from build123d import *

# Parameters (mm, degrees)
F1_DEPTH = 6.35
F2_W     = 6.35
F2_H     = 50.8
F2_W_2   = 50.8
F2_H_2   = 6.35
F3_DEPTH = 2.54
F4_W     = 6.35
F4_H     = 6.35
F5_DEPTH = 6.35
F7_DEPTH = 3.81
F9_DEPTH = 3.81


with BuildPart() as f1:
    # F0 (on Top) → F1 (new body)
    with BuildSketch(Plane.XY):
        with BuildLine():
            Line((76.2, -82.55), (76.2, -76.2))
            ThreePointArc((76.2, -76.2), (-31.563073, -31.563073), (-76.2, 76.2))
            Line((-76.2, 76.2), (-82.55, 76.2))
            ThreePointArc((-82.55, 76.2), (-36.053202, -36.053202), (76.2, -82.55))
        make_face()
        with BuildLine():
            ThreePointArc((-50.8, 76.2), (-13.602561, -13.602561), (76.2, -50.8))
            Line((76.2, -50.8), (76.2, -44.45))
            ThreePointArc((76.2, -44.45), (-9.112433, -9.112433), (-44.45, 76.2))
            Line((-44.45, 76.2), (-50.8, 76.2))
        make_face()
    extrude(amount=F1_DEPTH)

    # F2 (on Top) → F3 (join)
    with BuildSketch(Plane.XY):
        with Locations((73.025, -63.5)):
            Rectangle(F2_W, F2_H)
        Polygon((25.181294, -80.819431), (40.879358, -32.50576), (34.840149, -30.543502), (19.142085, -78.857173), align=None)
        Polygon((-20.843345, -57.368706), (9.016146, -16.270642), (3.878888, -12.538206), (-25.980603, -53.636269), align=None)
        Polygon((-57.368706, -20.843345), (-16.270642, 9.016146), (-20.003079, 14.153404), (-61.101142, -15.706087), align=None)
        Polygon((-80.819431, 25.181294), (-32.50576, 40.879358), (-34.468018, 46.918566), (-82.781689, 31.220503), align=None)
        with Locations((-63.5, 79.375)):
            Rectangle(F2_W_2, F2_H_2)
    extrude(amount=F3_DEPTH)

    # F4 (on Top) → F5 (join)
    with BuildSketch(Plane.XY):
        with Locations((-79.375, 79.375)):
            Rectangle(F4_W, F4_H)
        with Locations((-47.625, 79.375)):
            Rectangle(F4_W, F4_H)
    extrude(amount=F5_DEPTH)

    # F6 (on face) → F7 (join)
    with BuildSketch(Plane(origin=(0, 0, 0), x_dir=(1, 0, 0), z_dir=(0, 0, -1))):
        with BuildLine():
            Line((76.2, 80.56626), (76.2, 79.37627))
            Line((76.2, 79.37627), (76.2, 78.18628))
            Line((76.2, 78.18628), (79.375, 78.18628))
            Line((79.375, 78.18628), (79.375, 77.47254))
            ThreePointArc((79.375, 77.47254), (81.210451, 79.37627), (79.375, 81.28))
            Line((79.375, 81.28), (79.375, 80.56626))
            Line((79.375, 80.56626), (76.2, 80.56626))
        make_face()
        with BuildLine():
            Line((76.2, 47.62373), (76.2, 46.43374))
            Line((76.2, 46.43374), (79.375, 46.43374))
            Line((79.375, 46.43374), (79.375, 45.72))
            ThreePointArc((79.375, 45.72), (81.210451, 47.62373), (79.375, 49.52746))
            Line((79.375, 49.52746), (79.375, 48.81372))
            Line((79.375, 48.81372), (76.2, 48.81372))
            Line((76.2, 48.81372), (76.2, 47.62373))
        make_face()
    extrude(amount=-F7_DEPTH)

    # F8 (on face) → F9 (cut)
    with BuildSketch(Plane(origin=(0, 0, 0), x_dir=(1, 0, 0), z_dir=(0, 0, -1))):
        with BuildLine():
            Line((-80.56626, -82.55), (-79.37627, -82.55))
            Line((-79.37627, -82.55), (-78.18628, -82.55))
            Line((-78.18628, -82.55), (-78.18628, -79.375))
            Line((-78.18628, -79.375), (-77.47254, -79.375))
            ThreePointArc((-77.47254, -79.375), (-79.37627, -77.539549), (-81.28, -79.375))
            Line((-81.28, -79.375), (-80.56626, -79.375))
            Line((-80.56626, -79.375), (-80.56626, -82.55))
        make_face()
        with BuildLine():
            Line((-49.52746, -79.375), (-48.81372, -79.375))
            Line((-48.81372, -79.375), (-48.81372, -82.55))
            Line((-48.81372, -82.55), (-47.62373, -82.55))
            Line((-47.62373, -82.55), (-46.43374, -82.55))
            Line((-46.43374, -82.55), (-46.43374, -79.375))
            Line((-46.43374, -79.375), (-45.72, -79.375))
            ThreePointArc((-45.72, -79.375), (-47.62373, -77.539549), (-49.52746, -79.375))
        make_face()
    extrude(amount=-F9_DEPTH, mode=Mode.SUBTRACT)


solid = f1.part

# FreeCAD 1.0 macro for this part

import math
import FreeCAD as App
import Part
import Sketcher

V = App.Vector
Q = App.Units.Quantity

doc = App.newDocument("Part")
body = doc.addObject("PartDesign::Body", "Body")
body.AllowCompound = True

# Sketch on XY plane
sketch1 = doc.addObject("Sketcher::SketchObject", "Sketch")
body.addObject(sketch1)
sketch1.AttachmentSupport = (doc.XY_Plane, [""])
sketch1.MapMode = "FlatFace"
sketch1.addGeometry(Part.LineSegment(V(76, -83, 0), V(76, -76, 0)), False)
sketch1.addGeometry(Part.ArcOfCircle(Part.Circle(V(76, 76, 0), V(0, 0, 1), 152), math.radians(-180), math.radians(-90)), False)
sketch1.addGeometry(Part.LineSegment(V(-76, 76, 0), V(-83, 76, 0)), False)
sketch1.addGeometry(Part.ArcOfCircle(Part.Circle(V(76, 76, 0), V(0, 0, 1), 159), math.radians(180), math.radians(270)), False)
sketch1.addGeometry(Part.ArcOfCircle(Part.Circle(V(76, 76, 0), V(0, 0, 1), 127), math.radians(-180), math.radians(-90)), False)
sketch1.addGeometry(Part.LineSegment(V(76, -51, 0), V(76, -44, 0)), False)
sketch1.addGeometry(Part.ArcOfCircle(Part.Circle(V(76, 76, 0), V(0, 0, 1), 121), math.radians(-180), math.radians(-90)), False)
sketch1.addGeometry(Part.LineSegment(V(-44, 76, 0), V(-51, 76, 0)), False)
sketch1.addConstraint(Sketcher.Constraint("Coincident", 0, 2, 1, 2))
sketch1.addConstraint(Sketcher.Constraint("Coincident", 1, 1, 2, 1))
sketch1.addConstraint(Sketcher.Constraint("Coincident", 2, 2, 3, 1))
sketch1.addConstraint(Sketcher.Constraint("Coincident", 3, 2, 0, 1))
sketch1.addConstraint(Sketcher.Constraint("Coincident", 4, 2, 5, 1))
sketch1.addConstraint(Sketcher.Constraint("Coincident", 5, 2, 6, 2))
sketch1.addConstraint(Sketcher.Constraint("Coincident", 6, 1, 7, 1))
sketch1.addConstraint(Sketcher.Constraint("Coincident", 7, 2, 4, 1))
sketch1.addConstraint(Sketcher.Constraint("Vertical", 0))
sketch1.addConstraint(Sketcher.Constraint("Horizontal", 2))
sketch1.addConstraint(Sketcher.Constraint("Vertical", 5))
sketch1.addConstraint(Sketcher.Constraint("Horizontal", 7))
sketch1.addConstraint(Sketcher.Constraint("Coincident", 3, 3, 1, 3))
sketch1.addConstraint(Sketcher.Constraint("Coincident", 4, 3, 1, 3))
sketch1.addConstraint(Sketcher.Constraint("Coincident", 6, 3, 1, 3))
sketch1.addConstraint(Sketcher.Constraint("Symmetric", 0, 2, 1, 1, -1, 1))
sketch1.addConstraint(Sketcher.Constraint("Horizontal", 6, 3, 1, 1))
sketch1.addConstraint(Sketcher.Constraint("Horizontal", 2, 2, 6, 1))
sketch1.addConstraint(Sketcher.Constraint("Vertical", 6, 3, 0, 2))
sketch1.addConstraint(Sketcher.Constraint("Vertical", 3, 2, 4, 2))
sketch1.addConstraint(Sketcher.Constraint("Equal", 2, 7))
sketch1.addConstraint(Sketcher.Constraint("Radius", 1, Q("6.0000001 in")))
sketch1.addConstraint(Sketcher.Constraint("Radius", 4, Q("5 in")))
sketch1.addConstraint(Sketcher.Constraint("Radius", 3, Q("6.2499999 in")))
pad1 = doc.addObject("PartDesign::Pad", "Pad")
body.addObject(pad1)
pad1.Profile = sketch1
pad1.Length = Q("0.25 in")

# Sketch on XY plane
sketch2 = doc.addObject("Sketcher::SketchObject", "Sketch001")
body.addObject(sketch2)
sketch2.AttachmentSupport = (doc.XY_Plane, [""])
sketch2.MapMode = "FlatFace"
sketch2.addGeometry(Part.LineSegment(V(70, -38, 0), V(70, -89, 0)), False)
sketch2.addGeometry(Part.LineSegment(V(70, -89, 0), V(76, -89, 0)), False)
sketch2.addGeometry(Part.LineSegment(V(76, -89, 0), V(76, -38, 0)), False)
sketch2.addGeometry(Part.LineSegment(V(76, -38, 0), V(70, -38, 0)), False)
sketch2.addGeometry(Part.LineSegment(V(25, -81, 0), V(41, -33, 0)), False)
sketch2.addGeometry(Part.LineSegment(V(41, -33, 0), V(35, -31, 0)), False)
sketch2.addGeometry(Part.LineSegment(V(35, -31, 0), V(19, -79, 0)), False)
sketch2.addGeometry(Part.LineSegment(V(19, -79, 0), V(25, -81, 0)), False)
sketch2.addGeometry(Part.LineSegment(V(-21, -57, 0), V(9, -16, 0)), False)
sketch2.addGeometry(Part.LineSegment(V(9, -16, 0), V(4, -13, 0)), False)
sketch2.addGeometry(Part.LineSegment(V(4, -13, 0), V(-26, -54, 0)), False)
sketch2.addGeometry(Part.LineSegment(V(-26, -54, 0), V(-21, -57, 0)), False)
sketch2.addGeometry(Part.LineSegment(V(-57, -21, 0), V(-16, 9, 0)), False)
sketch2.addGeometry(Part.LineSegment(V(-16, 9, 0), V(-20, 14, 0)), False)
sketch2.addGeometry(Part.LineSegment(V(-20, 14, 0), V(-61, -16, 0)), False)
sketch2.addGeometry(Part.LineSegment(V(-61, -16, 0), V(-57, -21, 0)), False)
sketch2.addGeometry(Part.LineSegment(V(-81, 25, 0), V(-33, 41, 0)), False)
sketch2.addGeometry(Part.LineSegment(V(-33, 41, 0), V(-34, 47, 0)), False)
sketch2.addGeometry(Part.LineSegment(V(-34, 47, 0), V(-83, 31, 0)), False)
sketch2.addGeometry(Part.LineSegment(V(-83, 31, 0), V(-81, 25, 0)), False)
sketch2.addGeometry(Part.LineSegment(V(-89, 83, 0), V(-89, 76, 0)), False)
sketch2.addGeometry(Part.LineSegment(V(-89, 76, 0), V(-38, 76, 0)), False)
sketch2.addGeometry(Part.LineSegment(V(-38, 76, 0), V(-38, 83, 0)), False)
sketch2.addGeometry(Part.LineSegment(V(-38, 83, 0), V(-89, 83, 0)), False)
sketch2.addConstraint(Sketcher.Constraint("Coincident", 0, 2, 1, 1))
sketch2.addConstraint(Sketcher.Constraint("Coincident", 1, 2, 2, 1))
sketch2.addConstraint(Sketcher.Constraint("Coincident", 2, 2, 3, 1))
sketch2.addConstraint(Sketcher.Constraint("Coincident", 3, 2, 0, 1))
sketch2.addConstraint(Sketcher.Constraint("Coincident", 4, 2, 5, 1))
sketch2.addConstraint(Sketcher.Constraint("Coincident", 5, 2, 6, 1))
sketch2.addConstraint(Sketcher.Constraint("Coincident", 6, 2, 7, 1))
sketch2.addConstraint(Sketcher.Constraint("Coincident", 7, 2, 4, 1))
sketch2.addConstraint(Sketcher.Constraint("Coincident", 8, 2, 9, 1))
sketch2.addConstraint(Sketcher.Constraint("Coincident", 9, 2, 10, 1))
sketch2.addConstraint(Sketcher.Constraint("Coincident", 10, 2, 11, 1))
sketch2.addConstraint(Sketcher.Constraint("Coincident", 11, 2, 8, 1))
sketch2.addConstraint(Sketcher.Constraint("Coincident", 12, 2, 13, 1))
sketch2.addConstraint(Sketcher.Constraint("Coincident", 13, 2, 14, 1))
sketch2.addConstraint(Sketcher.Constraint("Coincident", 14, 2, 15, 1))
sketch2.addConstraint(Sketcher.Constraint("Coincident", 15, 2, 12, 1))
sketch2.addConstraint(Sketcher.Constraint("Coincident", 16, 2, 17, 1))
sketch2.addConstraint(Sketcher.Constraint("Coincident", 17, 2, 18, 1))
sketch2.addConstraint(Sketcher.Constraint("Coincident", 18, 2, 19, 1))
sketch2.addConstraint(Sketcher.Constraint("Coincident", 19, 2, 16, 1))
sketch2.addConstraint(Sketcher.Constraint("Coincident", 20, 2, 21, 1))
sketch2.addConstraint(Sketcher.Constraint("Coincident", 21, 2, 22, 1))
sketch2.addConstraint(Sketcher.Constraint("Coincident", 22, 2, 23, 1))
sketch2.addConstraint(Sketcher.Constraint("Coincident", 23, 2, 20, 1))
sketch2.addConstraint(Sketcher.Constraint("Vertical", 0))
sketch2.addConstraint(Sketcher.Constraint("Horizontal", 1))
sketch2.addConstraint(Sketcher.Constraint("Vertical", 2))
sketch2.addConstraint(Sketcher.Constraint("Horizontal", 3))
sketch2.addConstraint(Sketcher.Constraint("Vertical", 20))
sketch2.addConstraint(Sketcher.Constraint("Horizontal", 21))
sketch2.addConstraint(Sketcher.Constraint("Vertical", 22))
sketch2.addConstraint(Sketcher.Constraint("Horizontal", 23))
sketch2.addConstraint(Sketcher.Constraint("Perpendicular", 4, 5))
sketch2.addConstraint(Sketcher.Constraint("Perpendicular", 5, 6))
sketch2.addConstraint(Sketcher.Constraint("Perpendicular", 6, 7))
sketch2.addConstraint(Sketcher.Constraint("Perpendicular", 8, 9))
sketch2.addConstraint(Sketcher.Constraint("Perpendicular", 9, 10))
sketch2.addConstraint(Sketcher.Constraint("Perpendicular", 10, 11))
sketch2.addConstraint(Sketcher.Constraint("Perpendicular", 12, 13))
sketch2.addConstraint(Sketcher.Constraint("Perpendicular", 13, 14))
sketch2.addConstraint(Sketcher.Constraint("Perpendicular", 14, 15))
sketch2.addConstraint(Sketcher.Constraint("Perpendicular", 16, 17))
sketch2.addConstraint(Sketcher.Constraint("Perpendicular", 17, 18))
sketch2.addConstraint(Sketcher.Constraint("Perpendicular", 18, 19))
sketch2.addConstraint(Sketcher.Constraint("Equal", 23, 0))
sketch2.addConstraint(Sketcher.Constraint("Equal", 3, 20))
sketch2.addConstraint(Sketcher.Constraint("Equal", 6, 8))
sketch2.addConstraint(Sketcher.Constraint("Equal", 7, 9))
sketch2.addConstraint(Sketcher.Constraint("Equal", 10, 12))
sketch2.addConstraint(Sketcher.Constraint("Equal", 11, 13))
sketch2.addConstraint(Sketcher.Constraint("Equal", 14, 16))
sketch2.addConstraint(Sketcher.Constraint("Equal", 15, 17))
sketch2.addConstraint(Sketcher.Constraint("DistanceX", 21, 1, 21, 2, Q("2 in")))
sketch2.addConstraint(Sketcher.Constraint("Distance", 4, Q("2 in")))
sketch2.addConstraint(Sketcher.Constraint("DistanceX", -1, 1, 1, 2, Q("3 in")))
sketch2.addConstraint(Sketcher.Constraint("DistanceY", -1, 1, 20, 2, Q("3 in")))
sketch2.addConstraint(Sketcher.Constraint("Angle", 4, Q("71.999999 deg")))
sketch2.addConstraint(Sketcher.Constraint("Angle", 8, Q("54 deg")))
sketch2.addConstraint(Sketcher.Constraint("Angle", 12, Q("36 deg")))
sketch2.addConstraint(Sketcher.Constraint("Angle", 16, Q("18.000001 deg")))
sketch2.addConstraint(Sketcher.Constraint("DistanceX", 1, 1, 1, 2, Q("0.25 in")))
sketch2.addConstraint(Sketcher.Constraint("DistanceY", 0, 2, -1, 1, Q("3.5 in")))
sketch2.addConstraint(Sketcher.Constraint("DistanceX", 20, 2, -1, 1, Q("3.5 in")))
sketch2.addConstraint(Sketcher.Constraint("Distance", 5, Q("0.25 in")))
sketch2.addConstraint(Sketcher.Constraint("DistanceY", 5, 2, -1, 1, Q("1.2025001 in")))
sketch2.addConstraint(Sketcher.Constraint("DistanceY", 13, 2, 18, 2, 17.067099))
sketch2.addConstraint(Sketcher.Constraint("DistanceX", -1, 1, 4, 2, 40.879358))
sketch2.addConstraint(Sketcher.Constraint("DistanceY", 8, 2, -1, 1, 16.270642))
sketch2.addConstraint(Sketcher.Constraint("DistanceX", 12, 2, -1, 1, 16.270642))
sketch2.addConstraint(Sketcher.Constraint("DistanceX", 16, 2, -1, 1, 32.50576))
sketch2.addConstraint(Sketcher.Constraint("DistanceY", -1, 1, 16, 2, 40.879358))
sketch2.addConstraint(Sketcher.Constraint("DistanceX", 8, 2, 6, 2, 10.125939))
pad2 = doc.addObject("PartDesign::Pad", "Pad001")
body.addObject(pad2)
pad2.Profile = sketch2
pad2.Length = Q("0.1 in")

# Sketch on XY plane
sketch3 = doc.addObject("Sketcher::SketchObject", "Sketch002")
body.addObject(sketch3)
sketch3.AttachmentSupport = (doc.XY_Plane, [""])
sketch3.MapMode = "FlatFace"
sketch3.addGeometry(Part.LineSegment(V(-83, 83, 0), V(-83, 76, 0)), False)
sketch3.addGeometry(Part.LineSegment(V(-83, 76, 0), V(-76, 76, 0)), False)
sketch3.addGeometry(Part.LineSegment(V(-76, 76, 0), V(-76, 83, 0)), False)
sketch3.addGeometry(Part.LineSegment(V(-76, 83, 0), V(-83, 83, 0)), False)
sketch3.addGeometry(Part.LineSegment(V(-51, 83, 0), V(-51, 76, 0)), False)
sketch3.addGeometry(Part.LineSegment(V(-51, 76, 0), V(-44, 76, 0)), False)
sketch3.addGeometry(Part.LineSegment(V(-44, 76, 0), V(-44, 83, 0)), False)
sketch3.addGeometry(Part.LineSegment(V(-44, 83, 0), V(-51, 83, 0)), False)
sketch3.addConstraint(Sketcher.Constraint("Coincident", 0, 2, 1, 1))
sketch3.addConstraint(Sketcher.Constraint("Coincident", 1, 2, 2, 1))
sketch3.addConstraint(Sketcher.Constraint("Coincident", 2, 2, 3, 1))
sketch3.addConstraint(Sketcher.Constraint("Coincident", 3, 2, 0, 1))
sketch3.addConstraint(Sketcher.Constraint("Coincident", 4, 2, 5, 1))
sketch3.addConstraint(Sketcher.Constraint("Coincident", 5, 2, 6, 1))
sketch3.addConstraint(Sketcher.Constraint("Coincident", 6, 2, 7, 1))
sketch3.addConstraint(Sketcher.Constraint("Coincident", 7, 2, 4, 1))
sketch3.addConstraint(Sketcher.Constraint("Vertical", 0))
sketch3.addConstraint(Sketcher.Constraint("Horizontal", 1))
sketch3.addConstraint(Sketcher.Constraint("Vertical", 2))
sketch3.addConstraint(Sketcher.Constraint("Horizontal", 3))
sketch3.addConstraint(Sketcher.Constraint("Vertical", 4))
sketch3.addConstraint(Sketcher.Constraint("Horizontal", 5))
sketch3.addConstraint(Sketcher.Constraint("Vertical", 6))
sketch3.addConstraint(Sketcher.Constraint("Horizontal", 7))
sketch3.addConstraint(Sketcher.Constraint("Horizontal", 1, 2, 4, 2))
sketch3.addConstraint(Sketcher.Constraint("Horizontal", 3, 2, 6, 2))
sketch3.addConstraint(Sketcher.Constraint("Equal", 3, 5))
sketch3.addConstraint(Sketcher.Constraint("Equal", 7, 0))
sketch3.addConstraint(Sketcher.Constraint("DistanceY", -1, 1, 0, 2, Q("3 in")))
sketch3.addConstraint(Sketcher.Constraint("DistanceX", 1, 2, -1, 1, Q("3 in")))
sketch3.addConstraint(Sketcher.Constraint("DistanceX", 4, 2, -1, 1, Q("2 in")))
sketch3.addConstraint(Sketcher.Constraint("DistanceX", 1, 1, 1, 2, Q("0.25 in")))
pad3 = doc.addObject("PartDesign::Pad", "Pad002")
body.addObject(pad3)
pad3.Profile = sketch3
pad3.Length = Q("0.25 in")

# Sketch on XY plane
sketch4 = doc.addObject("Sketcher::SketchObject", "Sketch003")
body.addObject(sketch4)
sketch4.AttachmentSupport = (doc.XY_Plane, [""])
sketch4.MapMode = "FlatFace"
sketch4.addGeometry(Part.LineSegment(V(76.2, -80.6, 0), V(76.2, -78.2, 0)), False)
sketch4.addGeometry(Part.LineSegment(V(76.2, -78.2, 0), V(79.4, -78.2, 0)), False)
sketch4.addGeometry(Part.LineSegment(V(79.4, -78.2, 0), V(79.4, -77.5, 0)), False)
sketch4.addGeometry(Part.ArcOfCircle(Part.Circle(V(79.3, -79.4, 0), V(0, 0, 1), 1.9), math.radians(-88), math.radians(88)), False)
sketch4.addGeometry(Part.LineSegment(V(79.4, -81.3, 0), V(79.4, -80.6, 0)), False)
sketch4.addGeometry(Part.LineSegment(V(79.4, -80.6, 0), V(76.2, -80.6, 0)), False)
sketch4.addGeometry(Part.LineSegment(V(76.2, -46.4, 0), V(79.4, -46.4, 0)), False)
sketch4.addGeometry(Part.LineSegment(V(79.4, -46.4, 0), V(79.4, -45.7, 0)), False)
sketch4.addGeometry(Part.ArcOfCircle(Part.Circle(V(79.3, -47.6, 0), V(0, 0, 1), 1.9), math.radians(-88), math.radians(88)), False)
sketch4.addGeometry(Part.LineSegment(V(79.4, -49.5, 0), V(79.4, -48.8, 0)), False)
sketch4.addGeometry(Part.LineSegment(V(79.4, -48.8, 0), V(76.2, -48.8, 0)), False)
sketch4.addGeometry(Part.LineSegment(V(76.2, -48.8, 0), V(76.2, -46.4, 0)), False)
sketch4.addConstraint(Sketcher.Constraint("Coincident", 0, 2, 1, 1))
sketch4.addConstraint(Sketcher.Constraint("Coincident", 1, 2, 2, 1))
sketch4.addConstraint(Sketcher.Constraint("Coincident", 2, 2, 3, 2))
sketch4.addConstraint(Sketcher.Constraint("Coincident", 3, 1, 4, 1))
sketch4.addConstraint(Sketcher.Constraint("Coincident", 4, 2, 5, 1))
sketch4.addConstraint(Sketcher.Constraint("Coincident", 5, 2, 0, 1))
sketch4.addConstraint(Sketcher.Constraint("Coincident", 6, 2, 7, 1))
sketch4.addConstraint(Sketcher.Constraint("Coincident", 7, 2, 8, 2))
sketch4.addConstraint(Sketcher.Constraint("Coincident", 8, 1, 9, 1))
sketch4.addConstraint(Sketcher.Constraint("Coincident", 9, 2, 10, 1))
sketch4.addConstraint(Sketcher.Constraint("Coincident", 10, 2, 11, 1))
sketch4.addConstraint(Sketcher.Constraint("Coincident", 11, 2, 6, 1))
sketch4.addConstraint(Sketcher.Constraint("Vertical", 0))
sketch4.addConstraint(Sketcher.Constraint("Horizontal", 1))
sketch4.addConstraint(Sketcher.Constraint("Vertical", 2))
sketch4.addConstraint(Sketcher.Constraint("Vertical", 4))
sketch4.addConstraint(Sketcher.Constraint("Horizontal", 5))
sketch4.addConstraint(Sketcher.Constraint("Horizontal", 6))
sketch4.addConstraint(Sketcher.Constraint("Vertical", 7))
sketch4.addConstraint(Sketcher.Constraint("Vertical", 9))
sketch4.addConstraint(Sketcher.Constraint("Horizontal", 10))
sketch4.addConstraint(Sketcher.Constraint("Vertical", 11))
sketch4.addConstraint(Sketcher.Constraint("Equal", 3, 8))
sketch4.addConstraint(Sketcher.Constraint("Vertical", 3, 3, 8, 3))
sketch4.addConstraint(Sketcher.Constraint("Vertical", 2, 2, 3, 1))
sketch4.addConstraint(Sketcher.Constraint("Vertical", 4, 2, 6, 2))
sketch4.addConstraint(Sketcher.Constraint("Vertical", 7, 2, 8, 1))
sketch4.addConstraint(Sketcher.Constraint("Vertical", 5, 2, 10, 2))
sketch4.addConstraint(Sketcher.Constraint("Equal", 2, 4))
sketch4.addConstraint(Sketcher.Constraint("Equal", 4, 7))
sketch4.addConstraint(Sketcher.Constraint("Equal", 7, 9))
sketch4.addConstraint(Sketcher.Constraint("DistanceX", -1, 1, 0, 2, Q("3 in")))
sketch4.addConstraint(Sketcher.Constraint("Radius", 3, Q("0.075 in")))
sketch4.addConstraint(Sketcher.Constraint("DistanceY", 3, 1, -1, 1, Q("3.2 in")))
sketch4.addConstraint(Sketcher.Constraint("DistanceY", 7, 2, -1, 1, Q("1.8 in")))
sketch4.addConstraint(Sketcher.Constraint("DistanceX", 1, 1, 1, 2, Q("0.125 in")))
sketch4.addConstraint(Sketcher.Constraint("DistanceY", 0, 1, 0, 2, Q("0.0937 in")))
sketch4.addConstraint(Sketcher.Constraint("DistanceY", 2, 1, 2, 2, Q("0.0281 in")))
pad4 = doc.addObject("PartDesign::Pad", "Pad003")
body.addObject(pad4)
pad4.Profile = sketch4
pad4.Length = Q("0.15 in")

# Sketch on XY plane
sketch5 = doc.addObject("Sketcher::SketchObject", "Sketch004")
body.addObject(sketch5)
sketch5.AttachmentSupport = (doc.XY_Plane, [""])
sketch5.MapMode = "FlatFace"
sketch5.addGeometry(Part.LineSegment(V(-80.6, 82.5, 0), V(-78.2, 82.5, 0)), False)
sketch5.addGeometry(Part.LineSegment(V(-78.2, 82.5, 0), V(-78.2, 79.4, 0)), False)
sketch5.addGeometry(Part.LineSegment(V(-78.2, 79.4, 0), V(-77.5, 79.4, 0)), False)
sketch5.addGeometry(Part.ArcOfCircle(Part.Circle(V(-79.4, 79.4, 0), V(0, 0, 1), 1.9), math.radians(-178), math.radians(-2)), False)
sketch5.addGeometry(Part.LineSegment(V(-81.3, 79.4, 0), V(-80.6, 79.4, 0)), False)
sketch5.addGeometry(Part.LineSegment(V(-80.6, 79.4, 0), V(-80.6, 82.5, 0)), False)
sketch5.addGeometry(Part.LineSegment(V(-49.5, 79.4, 0), V(-48.8, 79.4, 0)), False)
sketch5.addGeometry(Part.LineSegment(V(-48.8, 79.4, 0), V(-48.8, 82.5, 0)), False)
sketch5.addGeometry(Part.LineSegment(V(-48.8, 82.5, 0), V(-46.4, 82.5, 0)), False)
sketch5.addGeometry(Part.LineSegment(V(-46.4, 82.5, 0), V(-46.4, 79.4, 0)), False)
sketch5.addGeometry(Part.LineSegment(V(-46.4, 79.4, 0), V(-45.7, 79.4, 0)), False)
sketch5.addGeometry(Part.ArcOfCircle(Part.Circle(V(-47.6, 79.4, 0), V(0, 0, 1), 1.9), math.radians(-178), math.radians(-2)), False)
sketch5.addConstraint(Sketcher.Constraint("Coincident", 0, 2, 1, 1))
sketch5.addConstraint(Sketcher.Constraint("Coincident", 1, 2, 2, 1))
sketch5.addConstraint(Sketcher.Constraint("Coincident", 2, 2, 3, 2))
sketch5.addConstraint(Sketcher.Constraint("Coincident", 3, 1, 4, 1))
sketch5.addConstraint(Sketcher.Constraint("Coincident", 4, 2, 5, 1))
sketch5.addConstraint(Sketcher.Constraint("Coincident", 5, 2, 0, 1))
sketch5.addConstraint(Sketcher.Constraint("Coincident", 6, 2, 7, 1))
sketch5.addConstraint(Sketcher.Constraint("Coincident", 7, 2, 8, 1))
sketch5.addConstraint(Sketcher.Constraint("Coincident", 8, 2, 9, 1))
sketch5.addConstraint(Sketcher.Constraint("Coincident", 9, 2, 10, 1))
sketch5.addConstraint(Sketcher.Constraint("Coincident", 10, 2, 11, 2))
sketch5.addConstraint(Sketcher.Constraint("Coincident", 11, 1, 6, 1))
sketch5.addConstraint(Sketcher.Constraint("Horizontal", 0))
sketch5.addConstraint(Sketcher.Constraint("Vertical", 1))
sketch5.addConstraint(Sketcher.Constraint("Horizontal", 2))
sketch5.addConstraint(Sketcher.Constraint("Horizontal", 4))
sketch5.addConstraint(Sketcher.Constraint("Vertical", 5))
sketch5.addConstraint(Sketcher.Constraint("Horizontal", 6))
sketch5.addConstraint(Sketcher.Constraint("Vertical", 7))
sketch5.addConstraint(Sketcher.Constraint("Horizontal", 8))
sketch5.addConstraint(Sketcher.Constraint("Vertical", 9))
sketch5.addConstraint(Sketcher.Constraint("Horizontal", 10))
sketch5.addConstraint(Sketcher.Constraint("Equal", 3, 11))
sketch5.addConstraint(Sketcher.Constraint("Horizontal", 3, 3, 11, 3))
sketch5.addConstraint(Sketcher.Constraint("Horizontal", 2, 2, 3, 1))
sketch5.addConstraint(Sketcher.Constraint("Horizontal", 4, 2, 6, 2))
sketch5.addConstraint(Sketcher.Constraint("Horizontal", 5, 2, 7, 2))
sketch5.addConstraint(Sketcher.Constraint("Horizontal", 6, 2, 9, 2))
sketch5.addConstraint(Sketcher.Constraint("Equal", 2, 4))
sketch5.addConstraint(Sketcher.Constraint("Equal", 4, 6))
sketch5.addConstraint(Sketcher.Constraint("Equal", 0, 8))
sketch5.addConstraint(Sketcher.Constraint("Radius", 3, Q("0.075 in")))
sketch5.addConstraint(Sketcher.Constraint("DistanceX", 3, 1, -1, 1, Q("3.2 in")))
sketch5.addConstraint(Sketcher.Constraint("DistanceX", 10, 2, -1, 1, Q("1.8 in")))
sketch5.addConstraint(Sketcher.Constraint("DistanceY", 1, 2, 1, 1, Q("0.125 in")))
sketch5.addConstraint(Sketcher.Constraint("DistanceY", -1, 1, 0, 2, Q("3.25 in")))
sketch5.addConstraint(Sketcher.Constraint("DistanceX", 0, 1, 0, 2, Q("0.0937 in")))
sketch5.addConstraint(Sketcher.Constraint("DistanceX", 2, 1, 2, 2, Q("0.0281 in")))
pocket1 = doc.addObject("PartDesign::Pocket", "Pocket")
body.addObject(pocket1)
pocket1.Profile = sketch5
pocket1.Length = Q("0.15 in")
pocket1.Reversed = True

doc.recompute()
